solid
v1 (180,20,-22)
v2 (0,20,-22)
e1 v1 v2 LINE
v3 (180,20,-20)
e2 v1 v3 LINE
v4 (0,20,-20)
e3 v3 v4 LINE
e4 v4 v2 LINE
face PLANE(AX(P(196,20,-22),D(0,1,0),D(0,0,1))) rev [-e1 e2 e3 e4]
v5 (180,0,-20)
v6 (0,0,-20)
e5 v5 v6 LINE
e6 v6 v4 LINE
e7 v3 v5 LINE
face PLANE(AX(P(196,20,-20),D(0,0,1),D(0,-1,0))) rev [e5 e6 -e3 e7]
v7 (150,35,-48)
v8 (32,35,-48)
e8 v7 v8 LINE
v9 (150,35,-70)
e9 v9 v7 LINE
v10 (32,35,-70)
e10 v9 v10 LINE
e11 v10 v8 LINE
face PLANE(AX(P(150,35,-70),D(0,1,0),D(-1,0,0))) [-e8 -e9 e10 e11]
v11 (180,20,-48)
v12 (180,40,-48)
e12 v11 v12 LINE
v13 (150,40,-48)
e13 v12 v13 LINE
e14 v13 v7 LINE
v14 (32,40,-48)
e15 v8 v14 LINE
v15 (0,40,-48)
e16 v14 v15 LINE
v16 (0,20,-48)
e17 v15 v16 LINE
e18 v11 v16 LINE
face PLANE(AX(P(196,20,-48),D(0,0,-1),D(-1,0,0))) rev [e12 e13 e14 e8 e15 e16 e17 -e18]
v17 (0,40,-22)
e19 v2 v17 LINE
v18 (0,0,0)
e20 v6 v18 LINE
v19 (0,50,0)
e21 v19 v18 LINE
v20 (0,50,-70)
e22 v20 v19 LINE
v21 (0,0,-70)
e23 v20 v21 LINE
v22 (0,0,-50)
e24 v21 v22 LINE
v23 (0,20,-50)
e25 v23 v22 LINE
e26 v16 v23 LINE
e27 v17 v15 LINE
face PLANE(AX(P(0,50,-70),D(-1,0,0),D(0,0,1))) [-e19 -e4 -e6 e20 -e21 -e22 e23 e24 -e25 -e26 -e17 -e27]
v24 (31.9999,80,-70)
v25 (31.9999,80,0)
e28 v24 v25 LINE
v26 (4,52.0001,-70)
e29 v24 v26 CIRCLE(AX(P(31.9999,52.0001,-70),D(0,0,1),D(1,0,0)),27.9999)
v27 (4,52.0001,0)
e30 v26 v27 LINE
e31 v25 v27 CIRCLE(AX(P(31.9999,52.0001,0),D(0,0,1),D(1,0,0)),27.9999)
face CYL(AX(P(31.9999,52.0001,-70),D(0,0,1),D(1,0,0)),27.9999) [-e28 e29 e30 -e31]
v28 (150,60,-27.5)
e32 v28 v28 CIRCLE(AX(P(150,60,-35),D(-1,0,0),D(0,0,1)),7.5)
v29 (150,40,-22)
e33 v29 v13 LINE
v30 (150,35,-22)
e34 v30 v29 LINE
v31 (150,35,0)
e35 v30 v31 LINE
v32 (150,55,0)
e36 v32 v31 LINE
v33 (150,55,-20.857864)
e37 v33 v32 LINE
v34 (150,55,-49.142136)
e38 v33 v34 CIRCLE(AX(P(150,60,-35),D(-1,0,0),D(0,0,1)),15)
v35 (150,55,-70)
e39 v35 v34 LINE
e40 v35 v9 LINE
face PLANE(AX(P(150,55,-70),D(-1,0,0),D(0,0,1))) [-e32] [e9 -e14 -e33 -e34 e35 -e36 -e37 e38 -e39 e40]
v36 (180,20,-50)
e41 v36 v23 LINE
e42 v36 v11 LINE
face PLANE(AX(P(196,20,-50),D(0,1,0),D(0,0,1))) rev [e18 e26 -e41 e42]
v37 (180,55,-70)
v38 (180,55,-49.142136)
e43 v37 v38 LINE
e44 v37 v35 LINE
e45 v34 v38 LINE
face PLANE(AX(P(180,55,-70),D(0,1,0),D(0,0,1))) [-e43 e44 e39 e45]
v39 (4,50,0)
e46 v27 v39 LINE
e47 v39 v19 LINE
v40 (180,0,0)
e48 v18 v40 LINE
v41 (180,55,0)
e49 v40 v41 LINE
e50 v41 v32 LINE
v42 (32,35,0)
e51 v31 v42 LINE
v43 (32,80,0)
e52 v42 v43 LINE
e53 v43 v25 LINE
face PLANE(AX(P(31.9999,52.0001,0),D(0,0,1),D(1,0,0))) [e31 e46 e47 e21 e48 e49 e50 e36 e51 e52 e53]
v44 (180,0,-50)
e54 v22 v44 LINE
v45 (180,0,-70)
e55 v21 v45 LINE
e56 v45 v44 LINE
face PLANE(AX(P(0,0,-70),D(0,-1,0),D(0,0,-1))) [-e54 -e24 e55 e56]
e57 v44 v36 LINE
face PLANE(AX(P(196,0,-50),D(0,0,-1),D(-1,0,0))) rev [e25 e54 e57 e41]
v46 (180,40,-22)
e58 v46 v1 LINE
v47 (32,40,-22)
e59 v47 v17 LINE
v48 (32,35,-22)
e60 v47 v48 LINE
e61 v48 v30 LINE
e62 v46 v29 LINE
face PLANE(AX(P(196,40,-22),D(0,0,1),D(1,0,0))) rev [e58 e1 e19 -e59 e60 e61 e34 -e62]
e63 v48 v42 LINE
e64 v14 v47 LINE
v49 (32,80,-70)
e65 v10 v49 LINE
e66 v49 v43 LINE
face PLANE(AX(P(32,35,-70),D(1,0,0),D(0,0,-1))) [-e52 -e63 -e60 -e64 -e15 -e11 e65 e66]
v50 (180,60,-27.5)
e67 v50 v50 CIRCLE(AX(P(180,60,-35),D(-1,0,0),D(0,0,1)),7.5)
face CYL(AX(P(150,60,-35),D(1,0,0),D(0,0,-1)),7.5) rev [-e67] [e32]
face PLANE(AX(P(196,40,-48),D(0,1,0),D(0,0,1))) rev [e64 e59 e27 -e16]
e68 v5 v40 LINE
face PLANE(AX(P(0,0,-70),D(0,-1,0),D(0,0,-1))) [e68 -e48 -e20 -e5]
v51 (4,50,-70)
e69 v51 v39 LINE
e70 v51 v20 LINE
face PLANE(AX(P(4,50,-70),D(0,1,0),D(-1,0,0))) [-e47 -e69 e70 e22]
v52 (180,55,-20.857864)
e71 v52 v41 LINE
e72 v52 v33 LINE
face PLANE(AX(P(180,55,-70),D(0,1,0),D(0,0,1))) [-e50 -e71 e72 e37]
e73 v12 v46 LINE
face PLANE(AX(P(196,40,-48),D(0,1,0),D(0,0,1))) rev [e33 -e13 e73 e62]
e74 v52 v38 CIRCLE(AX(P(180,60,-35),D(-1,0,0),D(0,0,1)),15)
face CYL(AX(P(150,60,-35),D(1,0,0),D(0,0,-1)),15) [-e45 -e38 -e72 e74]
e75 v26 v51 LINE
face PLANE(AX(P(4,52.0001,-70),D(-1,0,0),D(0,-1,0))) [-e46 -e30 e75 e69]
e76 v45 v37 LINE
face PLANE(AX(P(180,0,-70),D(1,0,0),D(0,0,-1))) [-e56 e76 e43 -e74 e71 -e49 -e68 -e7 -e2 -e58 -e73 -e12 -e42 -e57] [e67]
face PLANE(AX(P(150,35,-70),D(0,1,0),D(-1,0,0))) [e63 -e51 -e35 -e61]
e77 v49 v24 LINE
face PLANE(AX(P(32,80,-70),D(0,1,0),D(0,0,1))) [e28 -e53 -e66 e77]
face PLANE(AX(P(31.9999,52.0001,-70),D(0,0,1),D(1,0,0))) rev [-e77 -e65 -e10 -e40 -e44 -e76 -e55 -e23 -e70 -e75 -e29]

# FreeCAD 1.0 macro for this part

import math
import FreeCAD as App
import Part
import Sketcher

V = App.Vector


def add_polygon(sketch, points):
    """Adds a closed chain of lines whose ends are joined by coincident constraints."""
    first, n = sketch.GeometryCount, len(points)
    for a, b in zip(points, points[1:] + points[:1]):
        sketch.addGeometry(Part.LineSegment(App.Vector(*a, 0), App.Vector(*b, 0)), False)
    for i in range(n):
        sketch.addConstraint(Sketcher.Constraint("Coincident", first + i, 2, first + (i + 1) % n, 1))

doc = App.newDocument("Part")
params = doc.addObject("Spreadsheet::Sheet", "Params")
for row, (alias, value) in enumerate([
    ("sketch1_width", "180 mm"),
    ("sketch1_width2", "30 mm"),
    ("sketch1_width3", "118 mm"),
    ("sketch1_width4", "4 mm"),
    ("sketch1_height", "55 mm"),
    ("pad1_length", "70 mm"),
    ("sketch2_width", "20 mm"),
    ("sketch2_height", "30 mm"),
    ("sketch2_height2", "2 mm"),
    ("pocket1_length", "196 mm"),
    ("sketch3_diameter", "30 mm"),
    ("sketch3_diameter2", "15 mm"),
    ("pad2_length", "30 mm"),
    ("sketch4_radius", "7.5 mm"),
    ("pocket2_length", "30 mm"),
], start=1):
    params.set(f"A{row}", alias)
    params.set(f"B{row}", "=" + value)
    params.setAlias(f"B{row}", alias)

body = doc.addObject("PartDesign::Body", "Body")

sketch1 = body.newObject("Sketcher::SketchObject", "Sketch")
sketch1.AttachmentSupport = (doc.getObject("XY_Plane"), [""])
sketch1.MapMode = "FlatFace"
sketch1.addGeometry(Part.LineSegment(V(0, 0, 0), V(180, 0, 0)), False)
sketch1.addGeometry(Part.LineSegment(V(180, 0, 0), V(180, 55, 0)), False)
sketch1.addGeometry(Part.LineSegment(V(180, 55, 0), V(150, 55, 0)), False)
sketch1.addGeometry(Part.LineSegment(V(150, 55, 0), V(150, 35, 0)), False)
sketch1.addGeometry(Part.LineSegment(V(150, 35, 0), V(32, 35, 0)), False)
sketch1.addGeometry(Part.LineSegment(V(32, 35, 0), V(32, 80, 0)), False)
sketch1.addGeometry(Part.ArcOfCircle(Part.Circle(V(31.9999, 52.0001, 0), V(0, 0, 1), 27.9999), math.radians(89.999795), math.radians(180)), False)
sketch1.addGeometry(Part.LineSegment(V(4, 52.0001, 0), V(4, 50, 0)), False)
sketch1.addGeometry(Part.LineSegment(V(4, 50, 0), V(0, 50, 0)), False)
sketch1.addGeometry(Part.LineSegment(V(0, 50, 0), V(0, 0, 0)), False)
sketch1.addConstraint(Sketcher.Constraint("Coincident", 0, 2, 1, 1))
sketch1.addConstraint(Sketcher.Constraint("Coincident", 1, 2, 2, 1))
sketch1.addConstraint(Sketcher.Constraint("Coincident", 2, 2, 3, 1))
sketch1.addConstraint(Sketcher.Constraint("Coincident", 3, 2, 4, 1))
sketch1.addConstraint(Sketcher.Constraint("Coincident", 4, 2, 5, 1))
sketch1.addConstraint(Sketcher.Constraint("Coincident", 5, 2, 6, 1))
sketch1.addConstraint(Sketcher.Constraint("Tangent", 6, 2, 7, 1))
sketch1.addConstraint(Sketcher.Constraint("Coincident", 7, 2, 8, 1))
sketch1.addConstraint(Sketcher.Constraint("Coincident", 8, 2, 9, 1))
sketch1.addConstraint(Sketcher.Constraint("Coincident", 9, 2, 0, 1))
sketch1.addConstraint(Sketcher.Constraint("Horizontal", 0))
sketch1.addConstraint(Sketcher.Constraint("Vertical", 1))
sketch1.addConstraint(Sketcher.Constraint("Horizontal", 2))
sketch1.addConstraint(Sketcher.Constraint("Vertical", 3))
sketch1.addConstraint(Sketcher.Constraint("Horizontal", 4))
sketch1.addConstraint(Sketcher.Constraint("Vertical", 5))
sketch1.addConstraint(Sketcher.Constraint("Vertical", 7))
sketch1.addConstraint(Sketcher.Constraint("Horizontal", 8))
sketch1.addConstraint(Sketcher.Constraint("Vertical", 9))
sketch1.addConstraint(Sketcher.Constraint("Coincident", 9, 2, -1, 1))
sketch1.addConstraint(Sketcher.Constraint("DistanceX", 0, 1, 0, 2, 180.0))
sketch1.addConstraint(Sketcher.Constraint("DistanceX", 2, 2, 2, 1, 30.0))
sketch1.addConstraint(Sketcher.Constraint("DistanceX", 4, 2, 4, 1, 118.0))
sketch1.addConstraint(Sketcher.Constraint("DistanceX", 8, 2, 8, 1, 4.0))
sketch1.addConstraint(Sketcher.Constraint("DistanceY", 1, 1, 1, 2, 55.0))
sketch1.addConstraint(Sketcher.Constraint("DistanceY", 3, 2, 3, 1, 20.0))
sketch1.addConstraint(Sketcher.Constraint("DistanceY", 5, 1, 5, 2, 45.0))
sketch1.addConstraint(Sketcher.Constraint("DistanceY", 9, 2, 9, 1, 50.0))
sketch1.addConstraint(Sketcher.Constraint("Radius", 6, 27.9999))
sketch1.setExpression("Constraints[20]", "Params.sketch1_width")
sketch1.setExpression("Constraints[21]", "Params.sketch1_width2")
sketch1.setExpression("Constraints[22]", "Params.sketch1_width3")
sketch1.setExpression("Constraints[23]", "Params.sketch1_width4")
sketch1.setExpression("Constraints[24]", "Params.sketch1_height")
pad1 = body.newObject("PartDesign::Pad", "Pad")
pad1.Profile = sketch1
pad1.setExpression("Length", "Params.pad1_length")
pad1.Reversed = True

sketch2 = body.newObject("Sketcher::SketchObject", "Sketch001")
sketch2.AttachmentSupport = (doc.getObject("YZ_Plane"), [""])
sketch2.MapMode = "FlatFace"
add_polygon(sketch2, [(20, -50), (0, -50), (0, -20), (20, -20), (20, -22), (40, -22), (40, -48), (20, -48)])
sketch2.addConstraint(Sketcher.Constraint("Horizontal", 0))
sketch2.addConstraint(Sketcher.Constraint("Vertical", 1))
sketch2.addConstraint(Sketcher.Constraint("Horizontal", 2))
sketch2.addConstraint(Sketcher.Constraint("Vertical", 3))
sketch2.addConstraint(Sketcher.Constraint("Horizontal", 4))
sketch2.addConstraint(Sketcher.Constraint("Vertical", 5))
sketch2.addConstraint(Sketcher.Constraint("Horizontal", 6))
sketch2.addConstraint(Sketcher.Constraint("Vertical", 7))
sketch2.addConstraint(Sketcher.Constraint("PointOnObject", 0, 2, -2))
sketch2.addConstraint(Sketcher.Constraint("Vertical", 3, 2, 6, 2))
sketch2.addConstraint(Sketcher.Constraint("Equal", 2, 4))
sketch2.addConstraint(Sketcher.Constraint("Equal", 3, 7))
sketch2.addConstraint(Sketcher.Constraint("DistanceX", 0, 2, 0, 1, 20.0))
sketch2.addConstraint(Sketcher.Constraint("DistanceY", 1, 1, 1, 2, 30.0))
sketch2.addConstraint(Sketcher.Constraint("DistanceY", 3, 2, 3, 1, 2.0))
sketch2.addConstraint(Sketcher.Constraint("DistanceY", 0, 2, -1, 1, 50.0))
sketch2.setExpression("Constraints[20]", "Params.sketch2_width")
sketch2.setExpression("Constraints[21]", "Params.sketch2_height")
sketch2.setExpression("Constraints[22]", "Params.sketch2_height2")
pocket1 = body.newObject("PartDesign::Pocket", "Pocket")
pocket1.Profile = sketch2
pocket1.setExpression("Length", "Params.pocket1_length")
pocket1.Reversed = True

sketch3 = body.newObject("Sketcher::SketchObject", "Sketch002")
sketch3.AttachmentSupport = (doc.getObject("YZ_Plane"), [""])
sketch3.MapMode = "FlatFace"
sketch3.AttachmentOffset = App.Placement(V(0, 0, 180), App.Rotation())
sketch3.addGeometry(Part.Circle(V(60, -35, 0), V(0, 0, 1), 15), False)
sketch3.addGeometry(Part.Circle(V(60, -35, 0), V(0, 0, 1), 7.5), False)
sketch3.addConstraint(Sketcher.Constraint("Coincident", 1, 3, 0, 3))
sketch3.addConstraint(Sketcher.Constraint("Diameter", 0, 30.0))
sketch3.addConstraint(Sketcher.Constraint("Diameter", 1, 15.0))
sketch3.addConstraint(Sketcher.Constraint("DistanceX", -1, 1, 0, 3, 60.0))
sketch3.addConstraint(Sketcher.Constraint("DistanceY", 0, 3, -1, 1, 35.0))
sketch3.setExpression("Constraints[1]", "Params.sketch3_diameter")
sketch3.setExpression("Constraints[2]", "Params.sketch3_diameter2")
pad2 = body.newObject("PartDesign::Pad", "Pad001")
pad2.Profile = sketch3
pad2.setExpression("Length", "Params.pad2_length")
pad2.Reversed = True

sketch4 = body.newObject("Sketcher::SketchObject", "Sketch003")
sketch4.AttachmentSupport = (doc.getObject("YZ_Plane"), [""])
sketch4.MapMode = "FlatFace"
sketch4.AttachmentOffset = App.Placement(V(0, 0, 180), App.Rotation())
sketch4.addGeometry(Part.ArcOfCircle(Part.Circle(V(60, -35, 0), V(0, 0, 1), 7.5), math.radians(131.810315), math.radians(228.189685)), False)
sketch4.addGeometry(Part.ArcOfCircle(Part.Circle(V(60, -35, 0), V(0, 0, 1), 7.5), math.radians(90), math.radians(131.810315)), False)
sketch4.addGeometry(Part.ArcOfCircle(Part.Circle(V(60, -35, 0), V(0, 0, 1), 7.5), math.radians(-131.810315), math.radians(90)), False)
sketch4.addConstraint(Sketcher.Constraint("Tangent", 0, 1, 1, 2))
sketch4.addConstraint(Sketcher.Constraint("Tangent", 1, 1, 2, 2))
sketch4.addConstraint(Sketcher.Constraint("Tangent", 2, 1, 0, 2))
sketch4.addConstraint(Sketcher.Constraint("Vertical", 2, 3, 1, 1))
sketch4.addConstraint(Sketcher.Constraint("Vertical", 0, 1, 2, 1))
sketch4.addConstraint(Sketcher.Constraint("Radius", 0, 7.5))
sketch4.addConstraint(Sketcher.Constraint("DistanceX", -1, 1, 0, 3, 60.0))
sketch4.addConstraint(Sketcher.Constraint("DistanceY", 0, 3, -1, 1, 35.0))
sketch4.addConstraint(Sketcher.Constraint("DistanceX", -1, 1, 0, 1, 55.0))
sketch4.setExpression("Constraints[5]", "Params.sketch4_radius")
pocket2 = body.newObject("PartDesign::Pocket", "Pocket001")
pocket2.Profile = sketch4
pocket2.setExpression("Length", "Params.pocket2_length")

doc.recompute()
